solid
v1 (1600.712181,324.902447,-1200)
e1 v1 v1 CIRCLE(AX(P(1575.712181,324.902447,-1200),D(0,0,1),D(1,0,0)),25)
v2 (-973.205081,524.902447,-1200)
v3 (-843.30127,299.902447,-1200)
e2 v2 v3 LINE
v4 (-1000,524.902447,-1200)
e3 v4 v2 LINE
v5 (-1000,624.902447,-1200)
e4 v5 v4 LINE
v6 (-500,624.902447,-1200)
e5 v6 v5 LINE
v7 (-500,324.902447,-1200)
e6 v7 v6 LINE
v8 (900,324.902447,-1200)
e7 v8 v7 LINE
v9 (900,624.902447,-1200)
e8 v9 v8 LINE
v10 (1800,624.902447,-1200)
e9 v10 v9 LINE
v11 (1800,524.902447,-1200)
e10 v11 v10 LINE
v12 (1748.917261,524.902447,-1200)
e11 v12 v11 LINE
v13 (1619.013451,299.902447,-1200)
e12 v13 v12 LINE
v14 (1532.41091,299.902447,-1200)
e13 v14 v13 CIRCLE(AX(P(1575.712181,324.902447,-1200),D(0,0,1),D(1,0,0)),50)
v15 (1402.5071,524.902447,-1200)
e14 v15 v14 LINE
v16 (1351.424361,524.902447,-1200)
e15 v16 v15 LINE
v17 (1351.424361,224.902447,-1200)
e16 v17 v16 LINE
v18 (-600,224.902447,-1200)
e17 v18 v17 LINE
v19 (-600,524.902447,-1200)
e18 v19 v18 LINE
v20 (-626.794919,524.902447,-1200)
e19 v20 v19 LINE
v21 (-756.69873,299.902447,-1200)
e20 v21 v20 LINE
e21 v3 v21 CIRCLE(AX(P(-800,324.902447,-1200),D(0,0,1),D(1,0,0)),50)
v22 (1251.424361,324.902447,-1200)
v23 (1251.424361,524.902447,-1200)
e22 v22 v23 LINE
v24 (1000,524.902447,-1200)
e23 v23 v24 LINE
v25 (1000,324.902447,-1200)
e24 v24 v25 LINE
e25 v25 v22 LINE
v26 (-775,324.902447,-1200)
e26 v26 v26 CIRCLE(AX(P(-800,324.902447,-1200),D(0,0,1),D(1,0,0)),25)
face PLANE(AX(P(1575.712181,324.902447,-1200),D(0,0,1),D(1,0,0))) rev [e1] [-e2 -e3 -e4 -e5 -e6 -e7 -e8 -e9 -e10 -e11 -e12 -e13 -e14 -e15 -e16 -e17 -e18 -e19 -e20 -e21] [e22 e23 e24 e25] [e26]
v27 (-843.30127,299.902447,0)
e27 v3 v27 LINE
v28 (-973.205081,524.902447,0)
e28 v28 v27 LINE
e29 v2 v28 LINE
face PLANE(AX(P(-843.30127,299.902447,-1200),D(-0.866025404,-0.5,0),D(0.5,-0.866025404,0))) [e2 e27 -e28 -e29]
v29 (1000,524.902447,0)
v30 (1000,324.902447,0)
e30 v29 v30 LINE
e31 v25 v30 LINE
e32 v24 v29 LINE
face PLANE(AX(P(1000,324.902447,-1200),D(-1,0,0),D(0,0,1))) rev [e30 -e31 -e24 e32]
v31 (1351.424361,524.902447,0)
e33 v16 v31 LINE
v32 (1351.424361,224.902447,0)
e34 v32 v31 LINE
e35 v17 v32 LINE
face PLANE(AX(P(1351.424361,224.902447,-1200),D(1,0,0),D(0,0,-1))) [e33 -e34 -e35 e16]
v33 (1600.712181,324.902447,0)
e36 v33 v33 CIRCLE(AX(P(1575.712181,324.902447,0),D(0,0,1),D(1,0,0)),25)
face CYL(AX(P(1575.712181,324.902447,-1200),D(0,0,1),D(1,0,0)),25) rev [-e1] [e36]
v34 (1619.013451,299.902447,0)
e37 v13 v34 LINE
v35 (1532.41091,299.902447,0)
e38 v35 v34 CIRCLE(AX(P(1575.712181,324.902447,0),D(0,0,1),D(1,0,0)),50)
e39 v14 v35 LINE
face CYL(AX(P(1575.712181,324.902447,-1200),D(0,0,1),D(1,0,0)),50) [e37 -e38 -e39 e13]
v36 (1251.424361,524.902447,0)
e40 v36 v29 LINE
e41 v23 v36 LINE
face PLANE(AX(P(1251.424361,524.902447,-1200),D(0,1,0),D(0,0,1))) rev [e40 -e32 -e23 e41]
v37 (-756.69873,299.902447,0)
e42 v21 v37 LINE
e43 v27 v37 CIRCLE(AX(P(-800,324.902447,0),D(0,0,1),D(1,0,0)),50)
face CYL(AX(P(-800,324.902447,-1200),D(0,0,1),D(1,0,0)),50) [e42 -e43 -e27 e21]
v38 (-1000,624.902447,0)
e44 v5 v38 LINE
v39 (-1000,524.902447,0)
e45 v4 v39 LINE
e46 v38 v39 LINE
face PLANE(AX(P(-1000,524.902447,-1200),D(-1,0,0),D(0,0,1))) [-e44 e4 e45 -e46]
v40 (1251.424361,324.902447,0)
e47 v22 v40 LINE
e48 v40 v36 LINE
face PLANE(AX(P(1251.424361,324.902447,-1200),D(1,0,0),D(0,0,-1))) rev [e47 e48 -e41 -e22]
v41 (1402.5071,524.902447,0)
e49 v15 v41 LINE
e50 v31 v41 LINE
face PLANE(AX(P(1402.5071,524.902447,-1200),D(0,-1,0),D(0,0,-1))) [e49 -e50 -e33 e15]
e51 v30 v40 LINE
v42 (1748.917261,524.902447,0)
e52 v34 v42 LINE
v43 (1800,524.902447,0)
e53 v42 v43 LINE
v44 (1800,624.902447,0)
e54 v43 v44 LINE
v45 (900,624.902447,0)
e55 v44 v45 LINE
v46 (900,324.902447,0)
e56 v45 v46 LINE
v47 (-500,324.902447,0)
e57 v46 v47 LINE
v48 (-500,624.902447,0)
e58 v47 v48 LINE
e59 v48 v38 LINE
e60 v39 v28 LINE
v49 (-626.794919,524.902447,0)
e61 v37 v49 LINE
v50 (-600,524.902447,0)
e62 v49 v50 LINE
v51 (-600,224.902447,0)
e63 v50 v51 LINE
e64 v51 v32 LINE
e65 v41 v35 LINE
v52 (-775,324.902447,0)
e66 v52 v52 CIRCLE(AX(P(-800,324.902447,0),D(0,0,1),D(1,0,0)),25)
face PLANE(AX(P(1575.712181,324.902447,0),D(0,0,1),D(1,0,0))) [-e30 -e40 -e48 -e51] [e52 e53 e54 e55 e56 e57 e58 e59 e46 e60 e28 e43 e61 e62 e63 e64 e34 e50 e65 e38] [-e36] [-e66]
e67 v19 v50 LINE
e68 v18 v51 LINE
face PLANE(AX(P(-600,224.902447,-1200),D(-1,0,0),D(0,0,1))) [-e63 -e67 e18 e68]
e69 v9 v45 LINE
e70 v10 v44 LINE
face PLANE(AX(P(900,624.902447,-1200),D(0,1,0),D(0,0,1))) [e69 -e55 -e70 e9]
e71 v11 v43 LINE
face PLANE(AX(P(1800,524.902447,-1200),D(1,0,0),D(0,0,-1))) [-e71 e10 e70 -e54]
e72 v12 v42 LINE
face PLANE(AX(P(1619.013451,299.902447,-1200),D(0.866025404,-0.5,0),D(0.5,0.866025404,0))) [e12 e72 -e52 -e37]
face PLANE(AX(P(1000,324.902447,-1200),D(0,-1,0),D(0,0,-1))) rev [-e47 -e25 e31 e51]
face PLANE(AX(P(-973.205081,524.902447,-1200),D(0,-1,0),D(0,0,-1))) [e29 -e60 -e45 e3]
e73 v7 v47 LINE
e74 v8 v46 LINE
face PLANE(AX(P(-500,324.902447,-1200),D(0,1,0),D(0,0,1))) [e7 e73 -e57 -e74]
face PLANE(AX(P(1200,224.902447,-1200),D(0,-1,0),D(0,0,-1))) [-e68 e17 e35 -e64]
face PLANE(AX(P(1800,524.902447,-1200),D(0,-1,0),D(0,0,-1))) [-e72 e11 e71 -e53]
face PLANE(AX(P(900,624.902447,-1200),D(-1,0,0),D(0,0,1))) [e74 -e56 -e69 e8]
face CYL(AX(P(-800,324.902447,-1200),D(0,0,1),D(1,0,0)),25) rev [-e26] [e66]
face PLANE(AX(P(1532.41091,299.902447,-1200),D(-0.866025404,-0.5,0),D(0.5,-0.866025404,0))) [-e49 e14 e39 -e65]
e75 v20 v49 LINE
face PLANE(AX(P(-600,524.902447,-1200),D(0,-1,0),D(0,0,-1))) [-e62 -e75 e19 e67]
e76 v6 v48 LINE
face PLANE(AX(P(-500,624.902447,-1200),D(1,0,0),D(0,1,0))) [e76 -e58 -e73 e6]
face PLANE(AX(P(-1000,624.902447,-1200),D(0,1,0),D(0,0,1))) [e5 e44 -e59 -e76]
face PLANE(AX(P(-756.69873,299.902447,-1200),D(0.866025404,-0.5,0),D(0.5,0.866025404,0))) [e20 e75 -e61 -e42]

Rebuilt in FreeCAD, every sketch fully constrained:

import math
import FreeCAD as App
import Part
import Sketcher
from FreeCAD import Vector
Q = App.Units.Quantity

doc = App.newDocument("Part")
params = doc.addObject("Spreadsheet::Sheet", "Params")
for row, (alias, value) in enumerate([
    ("sketch1_diameter", "50 mm"),
    ("sketch1_radius", "50 mm"),
    ("sketch1_width", "900 mm"),
    ("sketch1_width2", "1400 mm"),
    ("sketch1_width3", "500 mm"),
    ("pad1_length", "1200 mm"),
], start=1):
    params.set(f"A{row}", alias)
    params.set(f"B{row}", "=" + value)
    params.setAlias(f"B{row}", alias)

body = doc.addObject("PartDesign::Body", "Body")

# Sketch on XY plane
sketch1 = body.newObject("Sketcher::SketchObject", "Sketch")
sketch1.AttachmentSupport = (doc.getObject("XY_Plane"), [""])
sketch1.MapMode = "FlatFace"
sketch1.addGeometry([
    Part.LineSegment(Vector(-600, 225, 0), Vector(1351, 225, 0)),  # 0
    Part.LineSegment(Vector(1351, 225, 0), Vector(1351, 525, 0)),  # 1
    Part.LineSegment(Vector(1351, 525, 0), Vector(1403, 525, 0)),  # 2
    Part.LineSegment(Vector(1403, 525, 0), Vector(1532, 300, 0)),  # 3
    Part.ArcOfCircle(Part.Circle(Vector(1576, 325, 0), Vector(0, 0, 1), 50), math.radians(-150), math.radians(-30)),  # 4
    Part.LineSegment(Vector(1619, 300, 0), Vector(1749, 525, 0)),  # 5
    Part.LineSegment(Vector(1749, 525, 0), Vector(1800, 525, 0)),  # 6
    Part.LineSegment(Vector(1800, 525, 0), Vector(1800, 625, 0)),  # 7
    Part.LineSegment(Vector(1800, 625, 0), Vector(900, 625, 0)),  # 8
    Part.LineSegment(Vector(900, 625, 0), Vector(900, 325, 0)),  # 9
    Part.LineSegment(Vector(900, 325, 0), Vector(-500, 325, 0)),  # 10
    Part.LineSegment(Vector(-500, 325, 0), Vector(-500, 625, 0)),  # 11
    Part.LineSegment(Vector(-500, 625, 0), Vector(-1000, 625, 0)),  # 12
    Part.LineSegment(Vector(-1000, 625, 0), Vector(-1000, 525, 0)),  # 13
    Part.LineSegment(Vector(-1000, 525, 0), Vector(-973, 525, 0)),  # 14
    Part.LineSegment(Vector(-973, 525, 0), Vector(-843, 300, 0)),  # 15
    Part.ArcOfCircle(Part.Circle(Vector(-800, 325, 0), Vector(0, 0, 1), 50), math.radians(-150), math.radians(-30)),  # 16
    Part.LineSegment(Vector(-757, 300, 0), Vector(-627, 525, 0)),  # 17
    Part.LineSegment(Vector(-627, 525, 0), Vector(-600, 525, 0)),  # 18
    Part.LineSegment(Vector(-600, 525, 0), Vector(-600, 225, 0)),  # 19
    Part.Circle(Vector(-800, 325, 0), Vector(0, 0, 1), 25),  # 20
    Part.Circle(Vector(1576, 325, 0), Vector(0, 0, 1), 25),  # 21
    Part.LineSegment(Vector(1251, 325, 0), Vector(1000, 325, 0)),  # 22
    Part.LineSegment(Vector(1000, 325, 0), Vector(1000, 525, 0)),  # 23
    Part.LineSegment(Vector(1000, 525, 0), Vector(1251, 525, 0)),  # 24
    Part.LineSegment(Vector(1251, 525, 0), Vector(1251, 325, 0)),  # 25
], False)
sketch1.addConstraint([
    Sketcher.Constraint("Coincident", 0, 2, 1, 1),
    Sketcher.Constraint("Coincident", 1, 2, 2, 1),
    Sketcher.Constraint("Coincident", 2, 2, 3, 1),
    Sketcher.Constraint("Tangent", 3, 2, 4, 1),
    Sketcher.Constraint("Tangent", 4, 2, 5, 1),
    Sketcher.Constraint("Coincident", 5, 2, 6, 1),
    Sketcher.Constraint("Coincident", 6, 2, 7, 1),
    Sketcher.Constraint("Coincident", 7, 2, 8, 1),
    Sketcher.Constraint("Coincident", 8, 2, 9, 1),
    Sketcher.Constraint("Coincident", 9, 2, 10, 1),
    Sketcher.Constraint("Coincident", 10, 2, 11, 1),
    Sketcher.Constraint("Coincident", 11, 2, 12, 1),
    Sketcher.Constraint("Coincident", 12, 2, 13, 1),
    Sketcher.Constraint("Coincident", 13, 2, 14, 1),
    Sketcher.Constraint("Coincident", 14, 2, 15, 1),
    Sketcher.Constraint("Tangent", 15, 2, 16, 1),
    Sketcher.Constraint("Tangent", 16, 2, 17, 1),
    Sketcher.Constraint("Coincident", 17, 2, 18, 1),
    Sketcher.Constraint("Coincident", 18, 2, 19, 1),
    Sketcher.Constraint("Coincident", 19, 2, 0, 1),
    Sketcher.Constraint("Coincident", 22, 2, 23, 1),
    Sketcher.Constraint("Coincident", 23, 2, 24, 1),
    Sketcher.Constraint("Coincident", 24, 2, 25, 1),
    Sketcher.Constraint("Coincident", 25, 2, 22, 1),
    Sketcher.Constraint("Horizontal", 0),
    Sketcher.Constraint("Vertical", 1),
    Sketcher.Constraint("Horizontal", 2),
    Sketcher.Constraint("Horizontal", 6),
    Sketcher.Constraint("Vertical", 7),
    Sketcher.Constraint("Horizontal", 8),
    Sketcher.Constraint("Vertical", 9),
    Sketcher.Constraint("Horizontal", 10),
    Sketcher.Constraint("Vertical", 11),
    Sketcher.Constraint("Horizontal", 12),
    Sketcher.Constraint("Vertical", 13),
    Sketcher.Constraint("Horizontal", 14),
    Sketcher.Constraint("Horizontal", 18),
    Sketcher.Constraint("Vertical", 19),
    Sketcher.Constraint("Horizontal", 22),
    Sketcher.Constraint("Vertical", 23),
    Sketcher.Constraint("Horizontal", 24),
    Sketcher.Constraint("Vertical", 25),
    Sketcher.Constraint("Coincident", 20, 3, 16, 3),
    Sketcher.Constraint("Coincident", 21, 3, 4, 3),
    Sketcher.Constraint("Equal", 4, 16),
    Sketcher.Constraint("Equal", 20, 21),
    Sketcher.Constraint("Symmetric", 13, 2, 23, 2, -2),
    Sketcher.Constraint("Parallel", 3, 15),
    Sketcher.Constraint("Parallel", 5, 17),
    Sketcher.Constraint("Horizontal", 4, 3, 16, 3),
    Sketcher.Constraint("Horizontal", 3, 2, 4, 2),
    Sketcher.Constraint("Horizontal", 2, 2, 5, 2),
    Sketcher.Constraint("Horizontal", 21, 3, 9, 2),
    Sketcher.Constraint("Horizontal", 8, 2, 11, 2),
    Sketcher.Constraint("Horizontal", 6, 2, 13, 2),
    Sketcher.Constraint("Horizontal", 14, 2, 17, 2),
    Sketcher.Constraint("Horizontal", 10, 2, 22, 2),
    Sketcher.Constraint("Equal", 2, 6),
    Sketcher.Constraint("Equal", 14, 18),
    Sketcher.Constraint("Equal", 1, 9),
    Sketcher.Constraint("Diameter", 20, 50.0),
    Sketcher.Constraint("Radius", 4, 50.0),
    Sketcher.Constraint("DistanceX", 8, 2, 8, 1, 900.0),
    Sketcher.Constraint("DistanceX", 10, 2, 10, 1, 1400.0),
    Sketcher.Constraint("DistanceX", 12, 2, 12, 1, 500.0),
    Sketcher.Constraint("DistanceY", 1, 1, 1, 2, 300.0),
    Sketcher.Constraint("DistanceY", 7, 1, 7, 2, 100.0),
    Sketcher.Constraint("Angle", 3, Q("-60 deg")),
    Sketcher.Constraint("DistanceX", 16, 3, -1, 1, 800.0),
    Sketcher.Constraint("DistanceX", -1, 1, 6, 2, 1800.0),
    Sketcher.Constraint("DistanceX", 24, 2, 1, 2, 100.0),
    Sketcher.Constraint("DistanceX", 0, 1, 0, 2, 1951.424361),
    Sketcher.Constraint("DistanceY", -1, 1, 4, 3, 324.902447),
])
sketch1.setExpression("Constraints[60]", "Params.sketch1_diameter")
sketch1.setExpression("Constraints[61]", "Params.sketch1_radius")
sketch1.setExpression("Constraints[62]", "Params.sketch1_width")
sketch1.setExpression("Constraints[63]", "Params.sketch1_width2")
sketch1.setExpression("Constraints[64]", "Params.sketch1_width3")
pad1 = body.newObject("PartDesign::Pad", "Pad")
pad1.Profile = sketch1
pad1.setExpression("Length", "Params.pad1_length")
pad1.Reversed = True

doc.recompute()
